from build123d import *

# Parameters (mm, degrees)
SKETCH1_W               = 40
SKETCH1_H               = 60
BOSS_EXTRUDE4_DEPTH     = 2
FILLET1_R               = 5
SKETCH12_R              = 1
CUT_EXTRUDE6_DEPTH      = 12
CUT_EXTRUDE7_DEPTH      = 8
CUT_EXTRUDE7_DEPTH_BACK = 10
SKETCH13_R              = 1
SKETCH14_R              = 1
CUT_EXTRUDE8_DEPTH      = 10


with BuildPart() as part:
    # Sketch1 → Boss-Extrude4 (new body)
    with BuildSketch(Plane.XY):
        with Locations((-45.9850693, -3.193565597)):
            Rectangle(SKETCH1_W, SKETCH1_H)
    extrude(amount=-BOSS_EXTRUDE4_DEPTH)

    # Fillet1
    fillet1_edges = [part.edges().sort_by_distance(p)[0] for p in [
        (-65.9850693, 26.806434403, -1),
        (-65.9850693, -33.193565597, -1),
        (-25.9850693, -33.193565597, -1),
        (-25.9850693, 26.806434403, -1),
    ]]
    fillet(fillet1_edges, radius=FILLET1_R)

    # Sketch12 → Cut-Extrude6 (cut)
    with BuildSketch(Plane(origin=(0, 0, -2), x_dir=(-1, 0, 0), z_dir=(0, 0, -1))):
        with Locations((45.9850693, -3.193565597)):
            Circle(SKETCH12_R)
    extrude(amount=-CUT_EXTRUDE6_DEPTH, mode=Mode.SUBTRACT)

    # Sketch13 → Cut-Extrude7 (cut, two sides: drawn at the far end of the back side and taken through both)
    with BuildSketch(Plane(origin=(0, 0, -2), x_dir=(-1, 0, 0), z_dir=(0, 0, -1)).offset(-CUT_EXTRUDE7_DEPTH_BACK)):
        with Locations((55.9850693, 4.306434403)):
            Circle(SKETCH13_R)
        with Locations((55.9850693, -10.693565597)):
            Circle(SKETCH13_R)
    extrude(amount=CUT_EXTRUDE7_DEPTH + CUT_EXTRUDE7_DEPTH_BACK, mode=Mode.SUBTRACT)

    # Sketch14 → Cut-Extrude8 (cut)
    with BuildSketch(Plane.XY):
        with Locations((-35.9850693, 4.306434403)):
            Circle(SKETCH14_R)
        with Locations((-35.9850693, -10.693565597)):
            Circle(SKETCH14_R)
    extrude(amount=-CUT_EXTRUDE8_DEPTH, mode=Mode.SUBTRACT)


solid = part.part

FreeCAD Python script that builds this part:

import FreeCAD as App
import Part
import Sketcher
from FreeCAD import Vector


def edges_at(feature, points):
    """Names of the edges that pass closest to the given points."""
    edges = feature.Shape.Edges
    near = lambda p: min(range(len(edges)), key=lambda i: edges[i].distToShape(Part.Vertex(*p))[0])
    return sorted({f"Edge{near(p) + 1}" for p in points})


def add_polygon(sketch, points):
    """Adds a closed chain of lines whose ends are joined by coincident constraints."""
    first, n = sketch.GeometryCount, len(points)
    for a, b in zip(points, points[1:] + points[:1]):
        sketch.addGeometry(Part.LineSegment(App.Vector(*a, 0), App.Vector(*b, 0)), False)
    for i in range(n):
        sketch.addConstraint(Sketcher.Constraint("Coincident", first + i, 2, first + (i + 1) % n, 1))

doc = App.newDocument("Part")
body = doc.addObject("PartDesign::Body", "Body")

# Sketch on XY plane
sketch1 = body.newObject("Sketcher::SketchObject", "Sketch")
sketch1.AttachmentSupport = (doc.getObject("XY_Plane"), [""])
sketch1.MapMode = "FlatFace"
add_polygon(sketch1, [(-66, 27), (-66, -33), (-26, -33), (-26, 27)])  # lines 0-3
sketch1.addConstraint([
    Sketcher.Constraint("Vertical", 0),
    Sketcher.Constraint("Horizontal", 1),
    Sketcher.Constraint("Vertical", 2),
    Sketcher.Constraint("Horizontal", 3),
    Sketcher.Constraint("DistanceX", 1, 1, 1, 2, 40.0),
    Sketcher.Constraint("DistanceY", 0, 2, 0, 1, 60.0),
    Sketcher.Constraint("DistanceX", 0, 2, -1, 1, 65.985069),
    Sketcher.Constraint("DistanceY", 0, 2, -1, 1, 33.193566),
])
pad1 = body.newObject("PartDesign::Pad", "Pad")
pad1.Profile = sketch1
pad1.Length = 2
pad1.Reversed = True
doc.recompute()

fillet = body.newObject("PartDesign::Fillet", "Fillet")
fillet.Base = (pad1, edges_at(pad1, [
    (-65.985, 26.806, -1),
    (-65.985, -33.194, -1),
    (-25.985, -33.194, -1),
    (-25.985, 26.806, -1),
]))
fillet.Radius = 5

# Sketch on XY plane
sketch2 = body.newObject("Sketcher::SketchObject", "Sketch001")
sketch2.AttachmentSupport = (doc.getObject("XY_Plane"), [""])
sketch2.MapMode = "FlatFace"
sketch2.AttachmentOffset = App.Placement(Vector(0, 0, -2), App.Rotation())
sketch2.addGeometry(Part.Circle(Vector(-46, -3.2, 0), Vector(0, 0, 1), 1), False)
sketch2.addConstraint([
    Sketcher.Constraint("Diameter", 0, 2.0),
    Sketcher.Constraint("DistanceX", 0, 3, -1, 1, 45.985069),
    Sketcher.Constraint("DistanceY", 0, 3, -1, 1, 3.193566),
])
pocket1 = body.newObject("PartDesign::Pocket", "Pocket")
pocket1.Profile = sketch2
pocket1.Length = 12
pocket1.Reversed = True

# Sketch on XY plane
sketch3 = body.newObject("Sketcher::SketchObject", "Sketch002")
sketch3.AttachmentSupport = (doc.getObject("XY_Plane"), [""])
sketch3.MapMode = "FlatFace"
sketch3.AttachmentOffset = App.Placement(Vector(0, 0, -2), App.Rotation())
sketch3.addGeometry([
    Part.Circle(Vector(-56, 4.3, 0), Vector(0, 0, 1), 1),
    Part.Circle(Vector(-56, -10.7, 0), Vector(0, 0, 1), 1),
], False)
sketch3.addConstraint([
    Sketcher.Constraint("Equal", 0, 1),
    Sketcher.Constraint("Vertical", 0, 3, 1, 3),
    Sketcher.Constraint("Diameter", 0, 2.0),
    Sketcher.Constraint("DistanceY", 1, 3, 0, 3, 15.0),
    Sketcher.Constraint("DistanceX", 0, 3, -1, 1, 55.985069),
    Sketcher.Constraint("DistanceY", -1, 1, 0, 3, 4.306434),
])
pocket2 = body.newObject("PartDesign::Pocket", "Pocket001")
pocket2.Profile = sketch3
pocket2.Type = "ThroughAll"
pocket2.Midplane = True

# Sketch on XY plane
sketch4 = body.newObject("Sketcher::SketchObject", "Sketch003")
sketch4.AttachmentSupport = (doc.getObject("XY_Plane"), [""])
sketch4.MapMode = "FlatFace"
sketch4.addGeometry([
    Part.Circle(Vector(-36, 4.3, 0), Vector(0, 0, 1), 1),
    Part.Circle(Vector(-36, -10.7, 0), Vector(0, 0, 1), 1),
], False)
sketch4.addConstraint([
    Sketcher.Constraint("Equal", 0, 1),
    Sketcher.Constraint("Vertical", 0, 3, 1, 3),
    Sketcher.Constraint("Diameter", 0, 2.0),
    Sketcher.Constraint("DistanceY", 1, 3, 0, 3, 15.0),
    Sketcher.Constraint("DistanceX", 0, 3, -1, 1, 35.985069),
    Sketcher.Constraint("DistanceY", -1, 1, 0, 3, 4.306434),
])
pocket3 = body.newObject("PartDesign::Pocket", "Pocket002")
pocket3.Profile = sketch4
pocket3.Length = 10

doc.recompute()
